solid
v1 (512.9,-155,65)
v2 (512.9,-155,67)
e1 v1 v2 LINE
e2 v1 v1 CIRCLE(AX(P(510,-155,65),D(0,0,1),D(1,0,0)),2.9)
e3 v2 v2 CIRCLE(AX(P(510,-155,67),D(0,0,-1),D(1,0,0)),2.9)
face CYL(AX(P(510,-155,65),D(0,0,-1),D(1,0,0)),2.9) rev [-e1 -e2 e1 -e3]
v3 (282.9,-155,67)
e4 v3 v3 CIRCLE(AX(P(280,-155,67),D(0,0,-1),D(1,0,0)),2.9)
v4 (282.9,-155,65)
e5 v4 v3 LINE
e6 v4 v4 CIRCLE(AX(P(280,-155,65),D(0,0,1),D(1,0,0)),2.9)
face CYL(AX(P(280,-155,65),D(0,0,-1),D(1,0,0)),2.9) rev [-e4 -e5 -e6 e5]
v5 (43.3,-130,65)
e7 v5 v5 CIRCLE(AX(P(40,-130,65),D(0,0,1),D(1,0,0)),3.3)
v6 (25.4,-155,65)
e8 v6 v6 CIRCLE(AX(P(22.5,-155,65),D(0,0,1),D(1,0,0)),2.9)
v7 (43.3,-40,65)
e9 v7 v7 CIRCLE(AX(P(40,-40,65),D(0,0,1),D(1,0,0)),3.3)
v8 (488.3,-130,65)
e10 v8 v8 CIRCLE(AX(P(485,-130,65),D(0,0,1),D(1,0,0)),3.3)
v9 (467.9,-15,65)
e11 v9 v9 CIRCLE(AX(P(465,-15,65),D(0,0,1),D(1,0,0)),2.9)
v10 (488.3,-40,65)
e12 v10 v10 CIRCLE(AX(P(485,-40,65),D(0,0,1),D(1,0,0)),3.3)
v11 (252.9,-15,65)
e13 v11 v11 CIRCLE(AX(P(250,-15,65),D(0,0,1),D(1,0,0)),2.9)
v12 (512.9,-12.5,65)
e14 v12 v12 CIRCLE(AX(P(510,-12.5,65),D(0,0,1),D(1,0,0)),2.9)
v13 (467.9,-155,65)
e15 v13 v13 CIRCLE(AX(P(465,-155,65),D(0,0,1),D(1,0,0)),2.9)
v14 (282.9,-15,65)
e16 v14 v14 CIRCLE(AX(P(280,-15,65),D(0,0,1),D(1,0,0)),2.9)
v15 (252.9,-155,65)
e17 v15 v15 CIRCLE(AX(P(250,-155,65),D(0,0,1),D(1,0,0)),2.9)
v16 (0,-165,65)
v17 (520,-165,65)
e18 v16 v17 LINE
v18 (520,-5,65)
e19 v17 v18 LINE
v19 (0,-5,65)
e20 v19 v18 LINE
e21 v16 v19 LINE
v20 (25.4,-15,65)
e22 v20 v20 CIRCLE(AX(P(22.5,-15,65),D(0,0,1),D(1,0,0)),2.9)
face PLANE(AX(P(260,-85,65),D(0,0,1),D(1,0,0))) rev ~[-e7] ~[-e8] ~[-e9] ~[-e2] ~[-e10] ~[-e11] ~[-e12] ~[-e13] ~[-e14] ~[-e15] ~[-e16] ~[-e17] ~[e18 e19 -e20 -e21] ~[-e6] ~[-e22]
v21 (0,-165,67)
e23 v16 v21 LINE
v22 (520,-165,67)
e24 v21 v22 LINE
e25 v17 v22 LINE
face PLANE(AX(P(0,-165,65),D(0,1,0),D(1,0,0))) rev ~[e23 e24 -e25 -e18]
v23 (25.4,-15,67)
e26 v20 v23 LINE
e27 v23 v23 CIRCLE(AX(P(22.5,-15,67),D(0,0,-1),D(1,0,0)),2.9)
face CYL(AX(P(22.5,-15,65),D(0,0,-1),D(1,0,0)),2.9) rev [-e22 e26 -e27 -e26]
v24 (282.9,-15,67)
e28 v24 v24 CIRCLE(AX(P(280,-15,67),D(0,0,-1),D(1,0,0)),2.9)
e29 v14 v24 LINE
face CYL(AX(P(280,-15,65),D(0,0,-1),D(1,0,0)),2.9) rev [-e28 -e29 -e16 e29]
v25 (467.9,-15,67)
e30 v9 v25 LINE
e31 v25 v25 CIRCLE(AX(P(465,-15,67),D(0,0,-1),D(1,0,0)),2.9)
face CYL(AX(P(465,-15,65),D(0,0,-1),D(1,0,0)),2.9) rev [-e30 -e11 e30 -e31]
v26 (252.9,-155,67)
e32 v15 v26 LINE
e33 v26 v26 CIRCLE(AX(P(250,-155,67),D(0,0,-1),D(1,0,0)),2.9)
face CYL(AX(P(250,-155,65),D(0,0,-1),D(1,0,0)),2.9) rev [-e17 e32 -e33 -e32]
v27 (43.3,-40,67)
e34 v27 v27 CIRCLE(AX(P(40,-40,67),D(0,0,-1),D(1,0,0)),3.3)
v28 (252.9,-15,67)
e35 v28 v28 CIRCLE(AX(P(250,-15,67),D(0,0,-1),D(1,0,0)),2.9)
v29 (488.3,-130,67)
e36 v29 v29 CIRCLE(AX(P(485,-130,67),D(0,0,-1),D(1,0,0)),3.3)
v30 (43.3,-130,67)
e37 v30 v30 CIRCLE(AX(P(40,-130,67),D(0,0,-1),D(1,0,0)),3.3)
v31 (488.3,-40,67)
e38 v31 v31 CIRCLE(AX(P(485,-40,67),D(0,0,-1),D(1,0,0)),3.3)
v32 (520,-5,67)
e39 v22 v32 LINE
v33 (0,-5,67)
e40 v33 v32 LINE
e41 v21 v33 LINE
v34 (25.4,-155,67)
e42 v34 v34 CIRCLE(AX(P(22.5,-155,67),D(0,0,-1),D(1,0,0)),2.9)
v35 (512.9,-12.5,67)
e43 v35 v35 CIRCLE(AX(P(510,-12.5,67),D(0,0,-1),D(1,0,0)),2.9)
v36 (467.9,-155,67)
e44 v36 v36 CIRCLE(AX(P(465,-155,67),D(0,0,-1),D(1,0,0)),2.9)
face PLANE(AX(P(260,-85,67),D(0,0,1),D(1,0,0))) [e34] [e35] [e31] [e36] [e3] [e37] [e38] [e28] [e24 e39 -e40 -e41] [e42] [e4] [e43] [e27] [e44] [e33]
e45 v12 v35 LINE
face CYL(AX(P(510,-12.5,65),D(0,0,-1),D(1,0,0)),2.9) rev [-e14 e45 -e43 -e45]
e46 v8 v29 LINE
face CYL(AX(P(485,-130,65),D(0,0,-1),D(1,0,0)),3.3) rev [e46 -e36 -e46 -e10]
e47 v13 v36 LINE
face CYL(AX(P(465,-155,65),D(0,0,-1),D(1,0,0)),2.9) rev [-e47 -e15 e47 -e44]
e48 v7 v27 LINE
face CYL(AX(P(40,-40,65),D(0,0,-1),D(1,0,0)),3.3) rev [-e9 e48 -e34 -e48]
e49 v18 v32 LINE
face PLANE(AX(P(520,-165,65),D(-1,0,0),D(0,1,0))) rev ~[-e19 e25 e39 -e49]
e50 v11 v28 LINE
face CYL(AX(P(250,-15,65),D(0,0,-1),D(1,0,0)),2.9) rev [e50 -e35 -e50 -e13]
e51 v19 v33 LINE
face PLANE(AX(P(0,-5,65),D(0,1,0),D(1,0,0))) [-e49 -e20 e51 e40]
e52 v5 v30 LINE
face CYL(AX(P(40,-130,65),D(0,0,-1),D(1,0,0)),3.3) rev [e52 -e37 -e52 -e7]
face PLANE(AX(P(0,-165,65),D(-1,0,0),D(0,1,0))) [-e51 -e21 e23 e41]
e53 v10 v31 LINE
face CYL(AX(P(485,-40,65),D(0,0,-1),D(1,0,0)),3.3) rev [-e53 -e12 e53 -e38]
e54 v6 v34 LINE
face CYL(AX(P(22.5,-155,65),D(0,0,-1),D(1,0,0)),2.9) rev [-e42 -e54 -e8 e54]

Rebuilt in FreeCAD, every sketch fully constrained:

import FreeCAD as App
import Part
import Sketcher
from FreeCAD import Vector


def add_polygon(sketch, points):
    """Adds a closed chain of lines whose ends are joined by coincident constraints."""
    first, n = sketch.GeometryCount, len(points)
    for a, b in zip(points, points[1:] + points[:1]):
        sketch.addGeometry(Part.LineSegment(App.Vector(*a, 0), App.Vector(*b, 0)), False)
    for i in range(n):
        sketch.addConstraint(Sketcher.Constraint("Coincident", first + i, 2, first + (i + 1) % n, 1))

doc = App.newDocument("Part")
params = doc.addObject("Spreadsheet::Sheet", "Params")
for row, (alias, value) in enumerate([
    ("sketch1_width", "520 mm"),
    ("sketch1_height", "160 mm"),
    ("pad1_length", "2 mm"),
    ("sketch2_diameter", "5.8 mm"),
    ("pocket1_length", "25 mm"),
    ("sketch3_diameter", "6.6 mm"),
    ("pocket2_length", "25 mm"),
], start=1):
    params.set(f"A{row}", alias)
    params.set(f"B{row}", "=" + value)
    params.setAlias(f"B{row}", alias)

body = doc.addObject("PartDesign::Body", "Body")

# Sketch on XY plane
sketch1 = doc.addObject("Sketcher::SketchObject", "Sketch")
body.addObject(sketch1)
sketch1.AttachmentSupport = (doc.XY_Plane, [""])
sketch1.MapMode = "FlatFace"
add_polygon(sketch1, [(0, 0), (0, -160), (520, -160), (520, 0)])  # lines 0-3
sketch1.addConstraint([
    Sketcher.Constraint("Vertical", 0),
    Sketcher.Constraint("Horizontal", 1),
    Sketcher.Constraint("Vertical", 2),
    Sketcher.Constraint("Horizontal", 3),
    Sketcher.Constraint("Coincident", 3, 2, -1, 1),
    Sketcher.Constraint("DistanceX", 1, 1, 1, 2, 520.0),
    Sketcher.Constraint("DistanceY", 0, 2, 0, 1, 160.0),
])
sketch1.setExpression("Constraints[9]", "Params.sketch1_width")
sketch1.setExpression("Constraints[10]", "Params.sketch1_height")
pad1 = doc.addObject("PartDesign::Pad", "Pad")
body.addObject(pad1)
pad1.Profile = sketch1
pad1.setExpression("Length", "Params.pad1_length")

# Sketch on XY plane
sketch2 = doc.addObject("Sketcher::SketchObject", "Sketch001")
body.addObject(sketch2)
sketch2.AttachmentSupport = (doc.XY_Plane, [""])
sketch2.MapMode = "FlatFace"
sketch2.addGeometry([
    Part.Circle(Vector(22.5, -10, 0), Vector(0, 0, 1), 2.9),  # 0
    Part.Circle(Vector(22.5, -150, 0), Vector(0, 0, 1), 2.9),  # 1
    Part.Circle(Vector(250, -10, 0), Vector(0, 0, 1), 2.9),  # 2
    Part.Circle(Vector(280, -10, 0), Vector(0, 0, 1), 2.9),  # 3
    Part.Circle(Vector(250, -150, 0), Vector(0, 0, 1), 2.9),  # 4
    Part.Circle(Vector(280, -150, 0), Vector(0, 0, 1), 2.9),  # 5
    Part.Circle(Vector(465, -150, 0), Vector(0, 0, 1), 2.9),  # 6
    Part.Circle(Vector(465, -10, 0), Vector(0, 0, 1), 2.9),  # 7
    Part.Circle(Vector(510, -7.5, 0), Vector(0, 0, 1), 2.9),  # 8
    Part.Circle(Vector(510, -150, 0), Vector(0, 0, 1), 2.9),  # 9
], False)
sketch2.addConstraint([
    Sketcher.Constraint("Equal", 0, 1),
    Sketcher.Constraint("Equal", 1, 2),
    Sketcher.Constraint("Equal", 2, 3),
    Sketcher.Constraint("Equal", 3, 4),
    Sketcher.Constraint("Equal", 4, 5),
    Sketcher.Constraint("Equal", 5, 6),
    Sketcher.Constraint("Equal", 6, 7),
    Sketcher.Constraint("Equal", 7, 8),
    Sketcher.Constraint("Equal", 8, 9),
    Sketcher.Constraint("Horizontal", 0, 3, 2, 3),
    Sketcher.Constraint("Horizontal", 2, 3, 3, 3),
    Sketcher.Constraint("Horizontal", 1, 3, 4, 3),
    Sketcher.Constraint("Horizontal", 4, 3, 5, 3),
    Sketcher.Constraint("Horizontal", 5, 3, 6, 3),
    Sketcher.Constraint("Horizontal", 3, 3, 7, 3),
    Sketcher.Constraint("Horizontal", 6, 3, 9, 3),
    Sketcher.Constraint("Vertical", 0, 3, 1, 3),
    Sketcher.Constraint("Vertical", 2, 3, 4, 3),
    Sketcher.Constraint("Vertical", 3, 3, 5, 3),
    Sketcher.Constraint("Vertical", 6, 3, 7, 3),
    Sketcher.Constraint("Vertical", 8, 3, 9, 3),
    Sketcher.Constraint("Diameter", 0, 5.8),
    Sketcher.Constraint("DistanceY", 0, 3, -1, 1, 10.0),
    Sketcher.Constraint("DistanceY", 1, 3, -1, 1, 150.0),
    Sketcher.Constraint("DistanceX", -1, 1, 2, 3, 250.0),
    Sketcher.Constraint("DistanceX", -1, 1, 3, 3, 280.0),
    Sketcher.Constraint("DistanceX", -1, 1, 6, 3, 465.0),
    Sketcher.Constraint("DistanceX", -1, 1, 8, 3, 510.0),
    Sketcher.Constraint("DistanceX", -1, 1, 0, 3, 22.5),
    Sketcher.Constraint("DistanceY", 8, 3, -1, 1, 7.5),
])
sketch2.setExpression("Constraints[21]", "Params.sketch2_diameter")
pocket1 = doc.addObject("PartDesign::Pocket", "Pocket")
body.addObject(pocket1)
pocket1.Profile = sketch2
pocket1.setExpression("Length", "Params.pocket1_length")
pocket1.Reversed = True

# Sketch on XY plane
sketch3 = doc.addObject("Sketcher::SketchObject", "Sketch002")
body.addObject(sketch3)
sketch3.AttachmentSupport = (doc.XY_Plane, [""])
sketch3.MapMode = "FlatFace"
sketch3.addGeometry([
    Part.Circle(Vector(40, -35, 0), Vector(0, 0, 1), 3.3),
    Part.Circle(Vector(40, -125, 0), Vector(0, 0, 1), 3.3),
    Part.Circle(Vector(485, -35, 0), Vector(0, 0, 1), 3.3),
    Part.Circle(Vector(485, -125, 0), Vector(0, 0, 1), 3.3),
], False)
sketch3.addConstraint([
    Sketcher.Constraint("Equal", 0, 1),
    Sketcher.Constraint("Equal", 1, 2),
    Sketcher.Constraint("Equal", 2, 3),
    Sketcher.Constraint("Horizontal", 0, 3, 2, 3),
    Sketcher.Constraint("Horizontal", 1, 3, 3, 3),
    Sketcher.Constraint("Vertical", 0, 3, 1, 3),
    Sketcher.Constraint("Vertical", 2, 3, 3, 3),
    Sketcher.Constraint("Diameter", 0, 6.6),
    Sketcher.Constraint("DistanceX", -1, 1, 0, 3, 40.0),
    Sketcher.Constraint("DistanceY", 0, 3, -1, 1, 35.0),
    Sketcher.Constraint("DistanceY", 1, 3, -1, 1, 125.0),
    Sketcher.Constraint("DistanceX", -1, 1, 2, 3, 485.0),
])
sketch3.setExpression("Constraints[7]", "Params.sketch3_diameter")
pocket2 = doc.addObject("PartDesign::Pocket", "Pocket001")
body.addObject(pocket2)
pocket2.Profile = sketch3
pocket2.setExpression("Length", "Params.pocket2_length")
pocket2.Reversed = True
body2 = doc.addObject("PartDesign::Body", "Body001")
doc.recompute()

body.Placement = App.Placement(Vector(0, -5, 65), App.Rotation(Vector(0, 0, 1), 0))
boolean = doc.addObject("PartDesign::Boolean", "Boolean")
body2.addObject(boolean)
boolean.Type = "Fuse"
boolean.addObjects([body])

doc.recompute()
